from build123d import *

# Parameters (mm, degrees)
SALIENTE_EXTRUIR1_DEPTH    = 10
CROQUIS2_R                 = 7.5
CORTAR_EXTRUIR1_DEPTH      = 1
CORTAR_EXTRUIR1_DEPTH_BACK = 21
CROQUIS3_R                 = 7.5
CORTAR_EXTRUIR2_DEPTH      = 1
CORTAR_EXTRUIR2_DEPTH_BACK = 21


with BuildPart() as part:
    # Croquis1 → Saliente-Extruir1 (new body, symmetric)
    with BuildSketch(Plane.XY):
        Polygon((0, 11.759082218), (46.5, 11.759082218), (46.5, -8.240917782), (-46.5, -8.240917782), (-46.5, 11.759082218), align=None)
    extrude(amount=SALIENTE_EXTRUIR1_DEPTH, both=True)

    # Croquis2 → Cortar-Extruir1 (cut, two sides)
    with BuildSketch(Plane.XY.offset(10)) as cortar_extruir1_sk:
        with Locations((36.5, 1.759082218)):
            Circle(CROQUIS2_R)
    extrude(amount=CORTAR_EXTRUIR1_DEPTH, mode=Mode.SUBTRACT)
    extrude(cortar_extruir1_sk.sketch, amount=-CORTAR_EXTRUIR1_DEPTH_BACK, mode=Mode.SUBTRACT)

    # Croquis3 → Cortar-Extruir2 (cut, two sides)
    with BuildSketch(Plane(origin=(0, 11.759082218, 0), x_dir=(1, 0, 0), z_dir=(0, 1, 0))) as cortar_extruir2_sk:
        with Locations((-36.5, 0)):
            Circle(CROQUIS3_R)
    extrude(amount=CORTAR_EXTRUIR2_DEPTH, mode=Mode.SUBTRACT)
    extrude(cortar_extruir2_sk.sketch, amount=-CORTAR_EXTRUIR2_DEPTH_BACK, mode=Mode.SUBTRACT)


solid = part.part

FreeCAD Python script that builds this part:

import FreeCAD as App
import Part
import Sketcher
from FreeCAD import Vector

doc = App.newDocument("Part")
body = doc.addObject("PartDesign::Body", "Body")

# Sketch on XY plane
sketch1 = doc.addObject("Sketcher::SketchObject", "Sketch")
body.addObject(sketch1)
sketch1.AttachmentSupport = (doc.XY_Plane, [""])
sketch1.MapMode = "FlatFace"
sketch1.addGeometry(Part.LineSegment(Vector(46, 12, 0), Vector(-46, 12, 0)), False)
sketch1.addGeometry(Part.LineSegment(Vector(-46, 12, 0), Vector(-46, -8, 0)), False)
sketch1.addGeometry(Part.LineSegment(Vector(-46, -8, 0), Vector(46, -8, 0)), False)
sketch1.addGeometry(Part.LineSegment(Vector(46, -8, 0), Vector(46, 12, 0)), False)
sketch1.addConstraint(Sketcher.Constraint("Coincident", 0, 2, 1, 1))
sketch1.addConstraint(Sketcher.Constraint("Coincident", 1, 2, 2, 1))
sketch1.addConstraint(Sketcher.Constraint("Coincident", 2, 2, 3, 1))
sketch1.addConstraint(Sketcher.Constraint("Coincident", 3, 2, 0, 1))
sketch1.addConstraint(Sketcher.Constraint("Horizontal", 0))
sketch1.addConstraint(Sketcher.Constraint("Vertical", 1))
sketch1.addConstraint(Sketcher.Constraint("Horizontal", 2))
sketch1.addConstraint(Sketcher.Constraint("Vertical", 3))
sketch1.addConstraint(Sketcher.Constraint("DistanceX", 0, 2, 0, 1, 93.0))
sketch1.addConstraint(Sketcher.Constraint("DistanceY", 1, 2, 1, 1, 20.0))
sketch1.addConstraint(Sketcher.Constraint("DistanceX", 0, 2, -1, 1, 46.5))
sketch1.addConstraint(Sketcher.Constraint("DistanceY", -1, 1, 0, 2, 11.759082))
pad1 = doc.addObject("PartDesign::Pad", "Pad")
body.addObject(pad1)
pad1.Profile = sketch1
pad1.Length = 20
pad1.Midplane = True

# Sketch on XY plane
sketch2 = doc.addObject("Sketcher::SketchObject", "Sketch001")
body.addObject(sketch2)
sketch2.AttachmentSupport = (doc.XY_Plane, [""])
sketch2.MapMode = "FlatFace"
sketch2.AttachmentOffset = App.Placement(Vector(0, 0, 10), App.Rotation())
sketch2.addGeometry(Part.Circle(Vector(36, 2, 0), Vector(0, 0, 1), 8), False)
sketch2.addConstraint(Sketcher.Constraint("Diameter", 0, 15.0))
sketch2.addConstraint(Sketcher.Constraint("DistanceX", -1, 1, 0, 3, 36.5))
sketch2.addConstraint(Sketcher.Constraint("DistanceY", -1, 1, 0, 3, 1.759082))
pocket1 = doc.addObject("PartDesign::Pocket", "Pocket")
body.addObject(pocket1)
pocket1.Profile = sketch2
pocket1.Type = "ThroughAll"
pocket1.Midplane = True

# Sketch on XZ plane
sketch3 = doc.addObject("Sketcher::SketchObject", "Sketch002")
body.addObject(sketch3)
sketch3.AttachmentSupport = (doc.XZ_Plane, [""])
sketch3.MapMode = "FlatFace"
sketch3.AttachmentOffset = App.Placement(Vector(0, 0, -11.759082), App.Rotation())
sketch3.addGeometry(Part.Circle(Vector(-36, 0, 0), Vector(0, 0, 1), 8), False)
sketch3.addConstraint(Sketcher.Constraint("PointOnObject", 0, 3, -1))
sketch3.addConstraint(Sketcher.Constraint("Diameter", 0, 15.0))
sketch3.addConstraint(Sketcher.Constraint("DistanceX", 0, 3, -1, 1, 36.5))
pocket2 = doc.addObject("PartDesign::Pocket", "Pocket001")
body.addObject(pocket2)
pocket2.Profile = sketch3
pocket2.Type = "ThroughAll"
pocket2.Midplane = True

doc.recompute()
